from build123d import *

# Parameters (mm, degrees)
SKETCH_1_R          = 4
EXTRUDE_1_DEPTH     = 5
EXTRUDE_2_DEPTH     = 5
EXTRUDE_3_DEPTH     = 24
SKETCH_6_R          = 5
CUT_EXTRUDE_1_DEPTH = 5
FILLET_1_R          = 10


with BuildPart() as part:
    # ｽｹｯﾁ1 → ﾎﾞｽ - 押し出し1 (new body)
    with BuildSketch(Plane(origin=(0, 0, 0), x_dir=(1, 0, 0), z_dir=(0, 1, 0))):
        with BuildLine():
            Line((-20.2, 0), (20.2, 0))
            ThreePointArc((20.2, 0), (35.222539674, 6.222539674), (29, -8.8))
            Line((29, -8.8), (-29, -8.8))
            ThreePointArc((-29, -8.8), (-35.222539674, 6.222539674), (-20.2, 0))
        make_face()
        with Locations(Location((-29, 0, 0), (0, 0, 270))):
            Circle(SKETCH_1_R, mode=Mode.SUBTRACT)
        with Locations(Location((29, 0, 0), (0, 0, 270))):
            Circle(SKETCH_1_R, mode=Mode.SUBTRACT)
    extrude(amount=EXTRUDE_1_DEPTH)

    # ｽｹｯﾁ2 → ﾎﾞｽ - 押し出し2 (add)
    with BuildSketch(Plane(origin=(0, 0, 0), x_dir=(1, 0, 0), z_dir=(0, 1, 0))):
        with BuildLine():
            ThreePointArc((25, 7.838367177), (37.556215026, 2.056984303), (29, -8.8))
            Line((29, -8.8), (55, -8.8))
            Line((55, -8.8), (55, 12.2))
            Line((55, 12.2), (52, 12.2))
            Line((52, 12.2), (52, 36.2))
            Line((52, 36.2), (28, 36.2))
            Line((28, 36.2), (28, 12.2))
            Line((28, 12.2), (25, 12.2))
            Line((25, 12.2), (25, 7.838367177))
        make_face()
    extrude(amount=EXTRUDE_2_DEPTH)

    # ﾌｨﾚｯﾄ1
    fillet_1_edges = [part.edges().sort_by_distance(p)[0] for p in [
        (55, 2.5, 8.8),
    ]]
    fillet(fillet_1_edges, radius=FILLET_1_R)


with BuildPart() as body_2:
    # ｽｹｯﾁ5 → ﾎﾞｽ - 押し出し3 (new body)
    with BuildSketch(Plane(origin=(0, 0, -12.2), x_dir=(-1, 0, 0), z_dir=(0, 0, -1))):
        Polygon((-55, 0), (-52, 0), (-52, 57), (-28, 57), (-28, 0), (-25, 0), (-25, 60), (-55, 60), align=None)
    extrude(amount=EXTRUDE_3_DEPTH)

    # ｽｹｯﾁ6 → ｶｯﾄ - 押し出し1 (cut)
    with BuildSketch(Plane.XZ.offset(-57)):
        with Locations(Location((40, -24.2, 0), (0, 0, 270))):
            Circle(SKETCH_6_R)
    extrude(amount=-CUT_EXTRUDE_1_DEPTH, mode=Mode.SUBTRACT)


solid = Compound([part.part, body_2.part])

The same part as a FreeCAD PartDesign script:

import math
import FreeCAD as App
import Part
import Sketcher
Q = App.Units.Quantity


def edges_at(feature, points):
    """Names of the edges that pass closest to the given points."""
    edges = feature.Shape.Edges
    near = lambda p: min(range(len(edges)), key=lambda i: edges[i].distToShape(Part.Vertex(*p))[0])
    return sorted({f"Edge{near(p) + 1}" for p in points})

doc = App.newDocument("Part")
body = doc.addObject("PartDesign::Body", "Body")

sketch1 = doc.addObject("Sketcher::SketchObject", "Sketch")
body.addObject(sketch1)
sketch1.AttachmentSupport = (doc.XZ_Plane, [""])
sketch1.MapMode = "FlatFace"
sketch1.addGeometry([
    Part.LineSegment(App.Vector(20.2, 0, 0), App.Vector(-20.2, 0, 0)),
    Part.ArcOfCircle(Part.Circle(App.Vector(-29, 0, 0), App.Vector(0, 0, 1), 8.8), math.radians(90), math.radians(360)),
    Part.LineSegment(App.Vector(-29, 8.8, 0), App.Vector(29, 8.8, 0)),
    Part.ArcOfCircle(Part.Circle(App.Vector(29, 0, 0), App.Vector(0, 0, 1), 8.8), math.radians(180), math.radians(450)),
    Part.Circle(App.Vector(29, 0, 0), App.Vector(0, 0, 1), 4),
    Part.Circle(App.Vector(-29, 0, 0), App.Vector(0, 0, 1), 4),
], False)
sketch1.addConstraint([
    Sketcher.Constraint("Coincident", 0, 2, 1, 2),
    Sketcher.Constraint("Tangent", 1, 1, 2, 1),
    Sketcher.Constraint("Tangent", 2, 2, 3, 2),
    Sketcher.Constraint("Coincident", 3, 1, 0, 1),
    Sketcher.Constraint("Horizontal", 0),
    Sketcher.Constraint("Horizontal", 2),
    Sketcher.Constraint("Coincident", 4, 3, 3, 3),
    Sketcher.Constraint("Coincident", 5, 3, 1, 3),
    Sketcher.Constraint("Equal", 1, 3),
    Sketcher.Constraint("Equal", 4, 5),
    Sketcher.Constraint("Symmetric", 1, 3, 3, 3, -1, 1),
    Sketcher.Constraint("PointOnObject", 0, 2, -1),
    Sketcher.Constraint("Diameter", 4, Q("8 mm")),
    Sketcher.Constraint("Radius", 1, Q("8.8 mm")),
    Sketcher.Constraint("DistanceX", 2, 1, 2, 2, Q("58 mm")),
])
pad1 = doc.addObject("PartDesign::Pad", "Pad")
body.addObject(pad1)
pad1.Profile = sketch1
pad1.Length = 5
pad1.Reversed = True

sketch2 = doc.addObject("Sketcher::SketchObject", "Sketch001")
body.addObject(sketch2)
sketch2.AttachmentSupport = (doc.XZ_Plane, [""])
sketch2.MapMode = "FlatFace"
sketch2.addGeometry([
    Part.ArcOfCircle(Part.Circle(App.Vector(29, 0, 0), App.Vector(0, 0, 1), 8.8), math.radians(-117), math.radians(90)),
    Part.LineSegment(App.Vector(29, 8.8, 0), App.Vector(55, 8.8, 0)),
    Part.LineSegment(App.Vector(55, 8.8, 0), App.Vector(55, -12.2, 0)),
    Part.LineSegment(App.Vector(55, -12.2, 0), App.Vector(52, -12.2, 0)),
    Part.LineSegment(App.Vector(52, -12.2, 0), App.Vector(52, -36.2, 0)),
    Part.LineSegment(App.Vector(52, -36.2, 0), App.Vector(28, -36.2, 0)),
    Part.LineSegment(App.Vector(28, -36.2, 0), App.Vector(28, -12.2, 0)),
    Part.LineSegment(App.Vector(28, -12.2, 0), App.Vector(25, -12.2, 0)),
    Part.LineSegment(App.Vector(25, -12.2, 0), App.Vector(25, -7.8, 0)),
], False)
sketch2.addConstraint([
    Sketcher.Constraint("Tangent", 0, 2, 1, 1),
    Sketcher.Constraint("Coincident", 1, 2, 2, 1),
    Sketcher.Constraint("Coincident", 2, 2, 3, 1),
    Sketcher.Constraint("Coincident", 3, 2, 4, 1),
    Sketcher.Constraint("Coincident", 4, 2, 5, 1),
    Sketcher.Constraint("Coincident", 5, 2, 6, 1),
    Sketcher.Constraint("Coincident", 6, 2, 7, 1),
    Sketcher.Constraint("Coincident", 7, 2, 8, 1),
    Sketcher.Constraint("Coincident", 8, 2, 0, 1),
    Sketcher.Constraint("Horizontal", 1),
    Sketcher.Constraint("Vertical", 2),
    Sketcher.Constraint("Horizontal", 3),
    Sketcher.Constraint("Vertical", 4),
    Sketcher.Constraint("Horizontal", 5),
    Sketcher.Constraint("Vertical", 6),
    Sketcher.Constraint("Horizontal", 7),
    Sketcher.Constraint("Vertical", 8),
    Sketcher.Constraint("PointOnObject", 0, 3, -1),
    Sketcher.Constraint("Horizontal", 3, 2, 6, 2),
    Sketcher.Constraint("Equal", 3, 7),
    Sketcher.Constraint("Equal", 5, 4),
    Sketcher.Constraint("Radius", 0, Q("8.8 mm")),
    Sketcher.Constraint("DistanceX", 1, 1, 1, 2, Q("26 mm")),
    Sketcher.Constraint("DistanceX", 3, 2, 3, 1, Q("3 mm")),
    Sketcher.Constraint("DistanceX", 5, 2, 5, 1, Q("24 mm")),
    Sketcher.Constraint("DistanceY", 2, 2, 2, 1, Q("21 mm")),
    Sketcher.Constraint("DistanceX", -1, 1, 0, 3, Q("29 mm")),
])
pad2 = doc.addObject("PartDesign::Pad", "Pad001")
body.addObject(pad2)
pad2.Profile = sketch2
pad2.Length = 5
pad2.Reversed = True
doc.recompute()

fillet = doc.addObject("PartDesign::Fillet", "Fillet")
body.addObject(fillet)
fillet.Base = (pad2, edges_at(pad2, [(55, 2.5, 8.8)]))
fillet.Radius = 10
body2 = doc.addObject("PartDesign::Body", "Body001")

sketch3 = doc.addObject("Sketcher::SketchObject", "Sketch002")
body2.addObject(sketch3)
sketch3.AttachmentSupport = (doc.getObject("XY_Plane001"), [""])
sketch3.MapMode = "FlatFace"
sketch3.AttachmentOffset = App.Placement(App.Vector(0, 0, -12.2), App.Rotation())
sketch3.addGeometry([
    Part.LineSegment(App.Vector(55, 0, 0), App.Vector(52, 0, 0)),
    Part.LineSegment(App.Vector(52, 0, 0), App.Vector(52, 57, 0)),
    Part.LineSegment(App.Vector(52, 57, 0), App.Vector(28, 57, 0)),
    Part.LineSegment(App.Vector(28, 57, 0), App.Vector(28, 0, 0)),
    Part.LineSegment(App.Vector(28, 0, 0), App.Vector(25, 0, 0)),
    Part.LineSegment(App.Vector(25, 0, 0), App.Vector(25, 60, 0)),
    Part.LineSegment(App.Vector(25, 60, 0), App.Vector(55, 60, 0)),
    Part.LineSegment(App.Vector(55, 60, 0), App.Vector(55, 0, 0)),
], False)
sketch3.addConstraint([
    Sketcher.Constraint("Coincident", 0, 2, 1, 1),
    Sketcher.Constraint("Coincident", 1, 2, 2, 1),
    Sketcher.Constraint("Coincident", 2, 2, 3, 1),
    Sketcher.Constraint("Coincident", 3, 2, 4, 1),
    Sketcher.Constraint("Coincident", 4, 2, 5, 1),
    Sketcher.Constraint("Coincident", 5, 2, 6, 1),
    Sketcher.Constraint("Coincident", 6, 2, 7, 1),
    Sketcher.Constraint("Coincident", 7, 2, 0, 1),
    Sketcher.Constraint("Horizontal", 0),
    Sketcher.Constraint("Vertical", 1),
    Sketcher.Constraint("Horizontal", 2),
    Sketcher.Constraint("Vertical", 3),
    Sketcher.Constraint("Horizontal", 4),
    Sketcher.Constraint("Vertical", 5),
    Sketcher.Constraint("Horizontal", 6),
    Sketcher.Constraint("Vertical", 7),
    Sketcher.Constraint("PointOnObject", 0, 2, -1),
    Sketcher.Constraint("PointOnObject", 3, 2, -1),
    Sketcher.Constraint("Equal", 0, 4),
    Sketcher.Constraint("DistanceX", 0, 2, 0, 1, Q("3 mm")),
    Sketcher.Constraint("DistanceX", 2, 2, 2, 1, Q("24 mm")),
    Sketcher.Constraint("DistanceY", 1, 1, 1, 2, Q("57 mm")),
    Sketcher.Constraint("DistanceY", 5, 1, 5, 2, Q("60 mm")),
    Sketcher.Constraint("DistanceX", -1, 1, 0, 2, Q("52 mm")),
])
pad3 = doc.addObject("PartDesign::Pad", "Pad002")
body2.addObject(pad3)
pad3.Profile = sketch3
pad3.Length = 24
pad3.Reversed = True

sketch4 = doc.addObject("Sketcher::SketchObject", "Sketch003")
body2.addObject(sketch4)
sketch4.AttachmentSupport = (doc.getObject("XZ_Plane001"), [""])
sketch4.MapMode = "FlatFace"
sketch4.AttachmentOffset = App.Placement(App.Vector(0, 0, -57), App.Rotation())
sketch4.addGeometry(Part.Circle(App.Vector(40, -24, 0), App.Vector(0, 0, 1), 5), False)
sketch4.addConstraint([
    Sketcher.Constraint("Diameter", 0, Q("10 mm")),
    Sketcher.Constraint("DistanceX", -1, 1, 0, 3, Q("40 mm")),
    Sketcher.Constraint("DistanceY", 0, 3, -1, 1, Q("24.2 mm")),
])
pocket1 = doc.addObject("PartDesign::Pocket", "Pocket")
body2.addObject(pocket1)
pocket1.Profile = sketch4
pocket1.Length = 5

doc.recompute()
